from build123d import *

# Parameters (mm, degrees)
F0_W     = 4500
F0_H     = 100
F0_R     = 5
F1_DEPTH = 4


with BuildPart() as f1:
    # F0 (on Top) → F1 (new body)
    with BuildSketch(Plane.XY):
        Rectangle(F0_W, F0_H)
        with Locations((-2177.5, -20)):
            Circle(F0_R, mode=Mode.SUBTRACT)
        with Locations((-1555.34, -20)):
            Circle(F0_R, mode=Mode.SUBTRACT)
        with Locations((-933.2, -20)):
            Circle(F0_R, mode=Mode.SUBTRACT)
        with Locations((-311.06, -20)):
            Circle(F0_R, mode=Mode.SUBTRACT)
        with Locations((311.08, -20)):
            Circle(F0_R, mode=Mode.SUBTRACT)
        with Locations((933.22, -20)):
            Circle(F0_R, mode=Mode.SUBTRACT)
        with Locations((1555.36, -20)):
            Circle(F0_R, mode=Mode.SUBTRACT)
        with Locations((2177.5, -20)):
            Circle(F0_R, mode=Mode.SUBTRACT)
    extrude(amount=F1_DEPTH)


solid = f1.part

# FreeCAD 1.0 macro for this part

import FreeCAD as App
import Part
import Sketcher

V = App.Vector

doc = App.newDocument("Part")
params = doc.addObject("Spreadsheet::Sheet", "Params")
for row, (alias, value) in enumerate([
    ("sketch1_diameter", "10 mm"),
    ("sketch1_width", "4500 mm"),
    ("sketch1_height", "100 mm"),
    ("pad1_length", "4 mm"),
], start=1):
    params.set(f"A{row}", alias)
    params.set(f"B{row}", "=" + value)
    params.setAlias(f"B{row}", alias)

body = doc.addObject("PartDesign::Body", "Body")

# Sketch on XY plane
sketch1 = body.newObject("Sketcher::SketchObject", "Sketch")
sketch1.AttachmentSupport = (doc.getObject("XY_Plane"), [""])
sketch1.MapMode = "FlatFace"
sketch1.addGeometry([
    Part.LineSegment(V(-2250, 50, 0), V(-2250, -50, 0)),  # 0
    Part.LineSegment(V(-2250, -50, 0), V(2250, -50, 0)),  # 1
    Part.LineSegment(V(2250, -50, 0), V(2250, 50, 0)),  # 2
    Part.LineSegment(V(2250, 50, 0), V(-2250, 50, 0)),  # 3
    Part.Circle(V(-2178, -20, 0), V(0, 0, 1), 5),  # 4
    Part.Circle(V(-1555, -20, 0), V(0, 0, 1), 5),  # 5
    Part.Circle(V(-933, -20, 0), V(0, 0, 1), 5),  # 6
    Part.Circle(V(-311, -20, 0), V(0, 0, 1), 5),  # 7
    Part.Circle(V(311, -20, 0), V(0, 0, 1), 5),  # 8
    Part.Circle(V(933, -20, 0), V(0, 0, 1), 5),  # 9
    Part.Circle(V(1555, -20, 0), V(0, 0, 1), 5),  # 10
    Part.Circle(V(2178, -20, 0), V(0, 0, 1), 5),  # 11
], False)
sketch1.addConstraint([
    Sketcher.Constraint("Coincident", 0, 2, 1, 1),
    Sketcher.Constraint("Coincident", 1, 2, 2, 1),
    Sketcher.Constraint("Coincident", 2, 2, 3, 1),
    Sketcher.Constraint("Coincident", 3, 2, 0, 1),
    Sketcher.Constraint("Vertical", 0),
    Sketcher.Constraint("Horizontal", 1),
    Sketcher.Constraint("Vertical", 2),
    Sketcher.Constraint("Horizontal", 3),
    Sketcher.Constraint("Equal", 4, 5),
    Sketcher.Constraint("Equal", 5, 6),
    Sketcher.Constraint("Equal", 6, 7),
    Sketcher.Constraint("Equal", 7, 8),
    Sketcher.Constraint("Equal", 8, 9),
    Sketcher.Constraint("Equal", 9, 10),
    Sketcher.Constraint("Equal", 10, 11),
    Sketcher.Constraint("Symmetric", 0, 2, 2, 2, -1, 1),
    Sketcher.Constraint("Symmetric", 4, 3, 11, 3, -2),
    Sketcher.Constraint("Horizontal", 4, 3, 5, 3),
    Sketcher.Constraint("Horizontal", 5, 3, 6, 3),
    Sketcher.Constraint("Horizontal", 6, 3, 7, 3),
    Sketcher.Constraint("Horizontal", 7, 3, 8, 3),
    Sketcher.Constraint("Horizontal", 8, 3, 9, 3),
    Sketcher.Constraint("Horizontal", 9, 3, 10, 3),
    Sketcher.Constraint("Diameter", 4, 10.0),
    Sketcher.Constraint("DistanceX", 1, 1, 1, 2, 4500.0),
    Sketcher.Constraint("DistanceY", 0, 2, 0, 1, 100.0),
    Sketcher.Constraint("DistanceY", 4, 3, -1, 1, 20.0),
    Sketcher.Constraint("DistanceX", 4, 3, -1, 1, 2177.5),
    Sketcher.Constraint("DistanceX", 6, 3, -1, 1, 933.2),
    Sketcher.Constraint("DistanceX", 5, 3, 10, 3, 3110.7),
    Sketcher.Constraint("DistanceX", 5, 3, -1, 1, 1555.34),
    Sketcher.Constraint("DistanceX", 7, 3, -1, 1, 311.06),
    Sketcher.Constraint("DistanceX", -1, 1, 8, 3, 311.08),
    Sketcher.Constraint("DistanceX", -1, 1, 9, 3, 933.22),
])
sketch1.setExpression("Constraints[23]", "Params.sketch1_diameter")
sketch1.setExpression("Constraints[24]", "Params.sketch1_width")
sketch1.setExpression("Constraints[25]", "Params.sketch1_height")
pad1 = body.newObject("PartDesign::Pad", "Pad")
pad1.Profile = sketch1
pad1.setExpression("Length", "Params.pad1_length")

doc.recompute()
